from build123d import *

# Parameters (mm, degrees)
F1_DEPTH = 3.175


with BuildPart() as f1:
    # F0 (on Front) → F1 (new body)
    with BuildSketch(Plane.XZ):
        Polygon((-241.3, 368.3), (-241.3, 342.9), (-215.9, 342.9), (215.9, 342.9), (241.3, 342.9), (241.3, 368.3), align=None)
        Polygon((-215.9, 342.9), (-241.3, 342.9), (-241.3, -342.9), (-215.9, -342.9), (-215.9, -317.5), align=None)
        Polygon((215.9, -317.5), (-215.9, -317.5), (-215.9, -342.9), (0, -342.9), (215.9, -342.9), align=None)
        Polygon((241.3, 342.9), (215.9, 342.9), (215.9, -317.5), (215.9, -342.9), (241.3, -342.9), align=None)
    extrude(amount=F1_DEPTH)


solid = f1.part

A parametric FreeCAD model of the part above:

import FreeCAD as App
import Part
import Sketcher

V = App.Vector
Q = App.Units.Quantity


def add_polygon(sketch, points):
    """Adds a closed chain of lines whose ends are joined by coincident constraints."""
    first, n = sketch.GeometryCount, len(points)
    for a, b in zip(points, points[1:] + points[:1]):
        sketch.addGeometry(Part.LineSegment(App.Vector(*a, 0), App.Vector(*b, 0)), False)
    for i in range(n):
        sketch.addConstraint(Sketcher.Constraint("Coincident", first + i, 2, first + (i + 1) % n, 1))

doc = App.newDocument("Part")
body = doc.addObject("PartDesign::Body", "Body")

# Sketch on XZ plane
sketch1 = body.newObject("Sketcher::SketchObject", "Sketch")
sketch1.AttachmentSupport = (doc.getObject("XZ_Plane"), [""])
sketch1.MapMode = "FlatFace"
add_polygon(sketch1, [(-241.3, 368.3), (-241.3, -342.9), (241.3, -342.9), (241.3, 368.3)])  # lines 0-3
add_polygon(sketch1, [(215.9, -317.5), (-215.9, -317.5), (-215.9, 342.9), (215.9, 342.9)])  # lines 4-7
sketch1.addConstraint([
    Sketcher.Constraint("Vertical", 0),
    Sketcher.Constraint("Horizontal", 1),
    Sketcher.Constraint("Vertical", 2),
    Sketcher.Constraint("Horizontal", 3),
    Sketcher.Constraint("Horizontal", 4),
    Sketcher.Constraint("Vertical", 5),
    Sketcher.Constraint("Horizontal", 6),
    Sketcher.Constraint("Vertical", 7),
    Sketcher.Constraint("DistanceX", 1, 1, 1, 2, Q("19 in")),
    Sketcher.Constraint("DistanceX", 4, 2, 4, 1, Q("17 in")),
    Sketcher.Constraint("DistanceY", 0, 2, 0, 1, Q("28 in")),
    Sketcher.Constraint("DistanceY", 5, 1, 5, 2, Q("26 in")),
    Sketcher.Constraint("DistanceX", 0, 2, 4, 2, Q("1 in")),
    Sketcher.Constraint("DistanceY", 0, 2, 4, 2, Q("1 in")),
    Sketcher.Constraint("DistanceX", 0, 2, -1, 1, Q("9.5 in")),
    Sketcher.Constraint("DistanceY", 0, 2, -1, 1, Q("13.5 in")),
])
pad1 = body.newObject("PartDesign::Pad", "Pad")
pad1.Profile = sketch1
pad1.Length = Q("0.125 in")

doc.recompute()
